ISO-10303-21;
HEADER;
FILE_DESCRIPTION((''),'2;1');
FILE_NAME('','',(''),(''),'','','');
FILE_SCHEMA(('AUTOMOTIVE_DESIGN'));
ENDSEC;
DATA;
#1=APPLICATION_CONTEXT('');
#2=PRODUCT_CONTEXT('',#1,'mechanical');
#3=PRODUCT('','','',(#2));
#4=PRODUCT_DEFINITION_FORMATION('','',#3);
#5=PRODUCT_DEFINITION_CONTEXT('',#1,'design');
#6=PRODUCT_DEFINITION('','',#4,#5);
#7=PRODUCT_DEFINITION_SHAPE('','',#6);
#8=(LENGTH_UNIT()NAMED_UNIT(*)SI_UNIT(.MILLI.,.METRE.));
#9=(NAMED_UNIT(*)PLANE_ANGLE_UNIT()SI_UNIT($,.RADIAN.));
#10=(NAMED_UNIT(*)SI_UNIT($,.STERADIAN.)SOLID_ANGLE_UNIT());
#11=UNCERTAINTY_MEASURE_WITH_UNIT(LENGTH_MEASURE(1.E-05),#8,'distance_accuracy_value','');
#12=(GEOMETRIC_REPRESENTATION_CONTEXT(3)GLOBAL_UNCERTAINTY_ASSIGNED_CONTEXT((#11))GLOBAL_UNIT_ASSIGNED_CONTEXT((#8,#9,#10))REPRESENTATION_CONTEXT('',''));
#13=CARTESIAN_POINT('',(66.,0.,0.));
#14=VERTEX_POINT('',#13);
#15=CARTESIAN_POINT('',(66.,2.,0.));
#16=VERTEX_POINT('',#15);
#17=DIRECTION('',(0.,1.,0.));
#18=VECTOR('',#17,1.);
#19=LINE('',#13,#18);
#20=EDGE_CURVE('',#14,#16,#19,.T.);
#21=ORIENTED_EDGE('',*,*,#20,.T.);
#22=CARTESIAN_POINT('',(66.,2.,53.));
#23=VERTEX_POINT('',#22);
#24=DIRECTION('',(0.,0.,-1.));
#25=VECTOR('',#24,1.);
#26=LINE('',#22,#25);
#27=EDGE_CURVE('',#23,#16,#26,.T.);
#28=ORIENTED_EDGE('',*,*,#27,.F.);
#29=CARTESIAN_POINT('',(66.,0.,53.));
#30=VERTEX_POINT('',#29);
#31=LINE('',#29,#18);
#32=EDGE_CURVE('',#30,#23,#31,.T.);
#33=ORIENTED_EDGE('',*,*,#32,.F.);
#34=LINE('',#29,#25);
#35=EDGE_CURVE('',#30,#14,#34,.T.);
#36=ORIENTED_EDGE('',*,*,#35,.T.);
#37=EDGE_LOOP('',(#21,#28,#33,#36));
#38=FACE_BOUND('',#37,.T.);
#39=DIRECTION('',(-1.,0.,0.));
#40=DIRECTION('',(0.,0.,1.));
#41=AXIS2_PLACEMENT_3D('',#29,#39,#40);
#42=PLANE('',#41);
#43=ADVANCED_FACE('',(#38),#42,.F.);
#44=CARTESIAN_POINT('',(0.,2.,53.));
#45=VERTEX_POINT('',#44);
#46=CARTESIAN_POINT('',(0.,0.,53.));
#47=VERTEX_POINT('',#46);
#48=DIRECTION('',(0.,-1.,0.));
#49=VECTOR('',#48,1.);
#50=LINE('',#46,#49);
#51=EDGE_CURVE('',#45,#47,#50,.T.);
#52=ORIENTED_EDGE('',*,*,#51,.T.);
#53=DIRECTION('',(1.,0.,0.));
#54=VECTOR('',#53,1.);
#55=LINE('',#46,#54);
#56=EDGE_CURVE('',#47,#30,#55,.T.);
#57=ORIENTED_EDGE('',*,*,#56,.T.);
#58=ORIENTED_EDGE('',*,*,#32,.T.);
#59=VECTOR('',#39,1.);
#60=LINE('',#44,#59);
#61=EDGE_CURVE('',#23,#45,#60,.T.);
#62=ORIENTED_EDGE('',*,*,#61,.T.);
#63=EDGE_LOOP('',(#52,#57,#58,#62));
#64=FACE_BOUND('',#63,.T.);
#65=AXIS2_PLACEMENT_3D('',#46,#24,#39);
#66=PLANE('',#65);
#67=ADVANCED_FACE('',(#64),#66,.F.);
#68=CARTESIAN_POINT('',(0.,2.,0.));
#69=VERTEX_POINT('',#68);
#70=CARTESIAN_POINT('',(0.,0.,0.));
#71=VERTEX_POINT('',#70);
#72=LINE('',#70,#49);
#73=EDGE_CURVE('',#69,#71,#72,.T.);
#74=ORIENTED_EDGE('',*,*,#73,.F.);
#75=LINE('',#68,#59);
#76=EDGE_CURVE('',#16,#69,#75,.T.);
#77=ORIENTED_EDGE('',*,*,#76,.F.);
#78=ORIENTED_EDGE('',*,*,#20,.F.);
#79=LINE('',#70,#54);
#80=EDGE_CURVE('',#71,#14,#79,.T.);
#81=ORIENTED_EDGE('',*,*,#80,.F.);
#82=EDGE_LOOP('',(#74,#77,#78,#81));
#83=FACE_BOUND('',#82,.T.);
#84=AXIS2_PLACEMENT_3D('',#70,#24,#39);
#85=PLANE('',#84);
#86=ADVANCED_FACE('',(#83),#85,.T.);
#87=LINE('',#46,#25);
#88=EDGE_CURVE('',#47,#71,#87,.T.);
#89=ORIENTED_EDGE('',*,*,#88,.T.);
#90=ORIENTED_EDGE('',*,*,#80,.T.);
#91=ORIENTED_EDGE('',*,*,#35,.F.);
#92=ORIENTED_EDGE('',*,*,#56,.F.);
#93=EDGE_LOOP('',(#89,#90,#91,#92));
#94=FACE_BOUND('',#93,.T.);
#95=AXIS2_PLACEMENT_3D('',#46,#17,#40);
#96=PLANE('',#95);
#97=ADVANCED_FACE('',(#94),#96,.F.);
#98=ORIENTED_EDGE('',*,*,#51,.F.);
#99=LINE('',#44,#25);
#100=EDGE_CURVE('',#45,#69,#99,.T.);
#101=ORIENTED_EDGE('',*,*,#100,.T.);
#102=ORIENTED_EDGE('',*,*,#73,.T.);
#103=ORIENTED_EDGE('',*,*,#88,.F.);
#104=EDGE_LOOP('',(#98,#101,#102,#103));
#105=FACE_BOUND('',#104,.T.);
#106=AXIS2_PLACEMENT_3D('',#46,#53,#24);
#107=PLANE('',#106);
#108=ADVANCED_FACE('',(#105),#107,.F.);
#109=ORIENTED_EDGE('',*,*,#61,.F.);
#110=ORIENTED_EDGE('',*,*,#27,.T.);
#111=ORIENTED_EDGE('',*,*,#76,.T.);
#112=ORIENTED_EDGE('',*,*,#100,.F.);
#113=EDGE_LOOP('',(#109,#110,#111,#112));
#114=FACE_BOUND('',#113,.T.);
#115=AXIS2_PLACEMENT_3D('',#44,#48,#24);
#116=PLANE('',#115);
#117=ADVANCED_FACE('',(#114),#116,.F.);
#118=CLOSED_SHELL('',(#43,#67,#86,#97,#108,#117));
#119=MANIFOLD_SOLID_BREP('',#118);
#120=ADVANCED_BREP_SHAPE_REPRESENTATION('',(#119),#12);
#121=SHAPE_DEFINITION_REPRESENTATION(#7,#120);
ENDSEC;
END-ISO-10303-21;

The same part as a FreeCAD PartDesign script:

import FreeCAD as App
import Part
import Sketcher
from FreeCAD import Vector
Q = App.Units.Quantity

doc = App.newDocument("Part")
body = doc.addObject("PartDesign::Body", "Body")

# Sketch on XY plane
sketch1 = doc.addObject("Sketcher::SketchObject", "Sketch")
body.addObject(sketch1)
sketch1.AttachmentSupport = (doc.XY_Plane, [""])
sketch1.MapMode = "FlatFace"
sketch1.addGeometry(Part.LineSegment(Vector(0, 2, 0), Vector(0, 0, 0)), False)
sketch1.addGeometry(Part.LineSegment(Vector(0, 0, 0), Vector(66, 0, 0)), False)
sketch1.addGeometry(Part.LineSegment(Vector(66, 0, 0), Vector(66, 2, 0)), False)
sketch1.addGeometry(Part.LineSegment(Vector(66, 2, 0), Vector(0, 2, 0)), False)
sketch1.addConstraint(Sketcher.Constraint("Coincident", 0, 2, 1, 1))
sketch1.addConstraint(Sketcher.Constraint("Coincident", 1, 2, 2, 1))
sketch1.addConstraint(Sketcher.Constraint("Coincident", 2, 2, 3, 1))
sketch1.addConstraint(Sketcher.Constraint("Coincident", 3, 2, 0, 1))
sketch1.addConstraint(Sketcher.Constraint("Vertical", 0))
sketch1.addConstraint(Sketcher.Constraint("Horizontal", 1))
sketch1.addConstraint(Sketcher.Constraint("Vertical", 2))
sketch1.addConstraint(Sketcher.Constraint("Horizontal", 3))
sketch1.addConstraint(Sketcher.Constraint("Coincident", 0, 2, -1, 1))
sketch1.addConstraint(Sketcher.Constraint("DistanceX", 1, 1, 1, 2, Q("66 mm")))
sketch1.addConstraint(Sketcher.Constraint("DistanceY", 0, 2, 0, 1, Q("2 mm")))
pad1 = doc.addObject("PartDesign::Pad", "Pad")
body.addObject(pad1)
pad1.Profile = sketch1
pad1.Length = 53

doc.recompute()
